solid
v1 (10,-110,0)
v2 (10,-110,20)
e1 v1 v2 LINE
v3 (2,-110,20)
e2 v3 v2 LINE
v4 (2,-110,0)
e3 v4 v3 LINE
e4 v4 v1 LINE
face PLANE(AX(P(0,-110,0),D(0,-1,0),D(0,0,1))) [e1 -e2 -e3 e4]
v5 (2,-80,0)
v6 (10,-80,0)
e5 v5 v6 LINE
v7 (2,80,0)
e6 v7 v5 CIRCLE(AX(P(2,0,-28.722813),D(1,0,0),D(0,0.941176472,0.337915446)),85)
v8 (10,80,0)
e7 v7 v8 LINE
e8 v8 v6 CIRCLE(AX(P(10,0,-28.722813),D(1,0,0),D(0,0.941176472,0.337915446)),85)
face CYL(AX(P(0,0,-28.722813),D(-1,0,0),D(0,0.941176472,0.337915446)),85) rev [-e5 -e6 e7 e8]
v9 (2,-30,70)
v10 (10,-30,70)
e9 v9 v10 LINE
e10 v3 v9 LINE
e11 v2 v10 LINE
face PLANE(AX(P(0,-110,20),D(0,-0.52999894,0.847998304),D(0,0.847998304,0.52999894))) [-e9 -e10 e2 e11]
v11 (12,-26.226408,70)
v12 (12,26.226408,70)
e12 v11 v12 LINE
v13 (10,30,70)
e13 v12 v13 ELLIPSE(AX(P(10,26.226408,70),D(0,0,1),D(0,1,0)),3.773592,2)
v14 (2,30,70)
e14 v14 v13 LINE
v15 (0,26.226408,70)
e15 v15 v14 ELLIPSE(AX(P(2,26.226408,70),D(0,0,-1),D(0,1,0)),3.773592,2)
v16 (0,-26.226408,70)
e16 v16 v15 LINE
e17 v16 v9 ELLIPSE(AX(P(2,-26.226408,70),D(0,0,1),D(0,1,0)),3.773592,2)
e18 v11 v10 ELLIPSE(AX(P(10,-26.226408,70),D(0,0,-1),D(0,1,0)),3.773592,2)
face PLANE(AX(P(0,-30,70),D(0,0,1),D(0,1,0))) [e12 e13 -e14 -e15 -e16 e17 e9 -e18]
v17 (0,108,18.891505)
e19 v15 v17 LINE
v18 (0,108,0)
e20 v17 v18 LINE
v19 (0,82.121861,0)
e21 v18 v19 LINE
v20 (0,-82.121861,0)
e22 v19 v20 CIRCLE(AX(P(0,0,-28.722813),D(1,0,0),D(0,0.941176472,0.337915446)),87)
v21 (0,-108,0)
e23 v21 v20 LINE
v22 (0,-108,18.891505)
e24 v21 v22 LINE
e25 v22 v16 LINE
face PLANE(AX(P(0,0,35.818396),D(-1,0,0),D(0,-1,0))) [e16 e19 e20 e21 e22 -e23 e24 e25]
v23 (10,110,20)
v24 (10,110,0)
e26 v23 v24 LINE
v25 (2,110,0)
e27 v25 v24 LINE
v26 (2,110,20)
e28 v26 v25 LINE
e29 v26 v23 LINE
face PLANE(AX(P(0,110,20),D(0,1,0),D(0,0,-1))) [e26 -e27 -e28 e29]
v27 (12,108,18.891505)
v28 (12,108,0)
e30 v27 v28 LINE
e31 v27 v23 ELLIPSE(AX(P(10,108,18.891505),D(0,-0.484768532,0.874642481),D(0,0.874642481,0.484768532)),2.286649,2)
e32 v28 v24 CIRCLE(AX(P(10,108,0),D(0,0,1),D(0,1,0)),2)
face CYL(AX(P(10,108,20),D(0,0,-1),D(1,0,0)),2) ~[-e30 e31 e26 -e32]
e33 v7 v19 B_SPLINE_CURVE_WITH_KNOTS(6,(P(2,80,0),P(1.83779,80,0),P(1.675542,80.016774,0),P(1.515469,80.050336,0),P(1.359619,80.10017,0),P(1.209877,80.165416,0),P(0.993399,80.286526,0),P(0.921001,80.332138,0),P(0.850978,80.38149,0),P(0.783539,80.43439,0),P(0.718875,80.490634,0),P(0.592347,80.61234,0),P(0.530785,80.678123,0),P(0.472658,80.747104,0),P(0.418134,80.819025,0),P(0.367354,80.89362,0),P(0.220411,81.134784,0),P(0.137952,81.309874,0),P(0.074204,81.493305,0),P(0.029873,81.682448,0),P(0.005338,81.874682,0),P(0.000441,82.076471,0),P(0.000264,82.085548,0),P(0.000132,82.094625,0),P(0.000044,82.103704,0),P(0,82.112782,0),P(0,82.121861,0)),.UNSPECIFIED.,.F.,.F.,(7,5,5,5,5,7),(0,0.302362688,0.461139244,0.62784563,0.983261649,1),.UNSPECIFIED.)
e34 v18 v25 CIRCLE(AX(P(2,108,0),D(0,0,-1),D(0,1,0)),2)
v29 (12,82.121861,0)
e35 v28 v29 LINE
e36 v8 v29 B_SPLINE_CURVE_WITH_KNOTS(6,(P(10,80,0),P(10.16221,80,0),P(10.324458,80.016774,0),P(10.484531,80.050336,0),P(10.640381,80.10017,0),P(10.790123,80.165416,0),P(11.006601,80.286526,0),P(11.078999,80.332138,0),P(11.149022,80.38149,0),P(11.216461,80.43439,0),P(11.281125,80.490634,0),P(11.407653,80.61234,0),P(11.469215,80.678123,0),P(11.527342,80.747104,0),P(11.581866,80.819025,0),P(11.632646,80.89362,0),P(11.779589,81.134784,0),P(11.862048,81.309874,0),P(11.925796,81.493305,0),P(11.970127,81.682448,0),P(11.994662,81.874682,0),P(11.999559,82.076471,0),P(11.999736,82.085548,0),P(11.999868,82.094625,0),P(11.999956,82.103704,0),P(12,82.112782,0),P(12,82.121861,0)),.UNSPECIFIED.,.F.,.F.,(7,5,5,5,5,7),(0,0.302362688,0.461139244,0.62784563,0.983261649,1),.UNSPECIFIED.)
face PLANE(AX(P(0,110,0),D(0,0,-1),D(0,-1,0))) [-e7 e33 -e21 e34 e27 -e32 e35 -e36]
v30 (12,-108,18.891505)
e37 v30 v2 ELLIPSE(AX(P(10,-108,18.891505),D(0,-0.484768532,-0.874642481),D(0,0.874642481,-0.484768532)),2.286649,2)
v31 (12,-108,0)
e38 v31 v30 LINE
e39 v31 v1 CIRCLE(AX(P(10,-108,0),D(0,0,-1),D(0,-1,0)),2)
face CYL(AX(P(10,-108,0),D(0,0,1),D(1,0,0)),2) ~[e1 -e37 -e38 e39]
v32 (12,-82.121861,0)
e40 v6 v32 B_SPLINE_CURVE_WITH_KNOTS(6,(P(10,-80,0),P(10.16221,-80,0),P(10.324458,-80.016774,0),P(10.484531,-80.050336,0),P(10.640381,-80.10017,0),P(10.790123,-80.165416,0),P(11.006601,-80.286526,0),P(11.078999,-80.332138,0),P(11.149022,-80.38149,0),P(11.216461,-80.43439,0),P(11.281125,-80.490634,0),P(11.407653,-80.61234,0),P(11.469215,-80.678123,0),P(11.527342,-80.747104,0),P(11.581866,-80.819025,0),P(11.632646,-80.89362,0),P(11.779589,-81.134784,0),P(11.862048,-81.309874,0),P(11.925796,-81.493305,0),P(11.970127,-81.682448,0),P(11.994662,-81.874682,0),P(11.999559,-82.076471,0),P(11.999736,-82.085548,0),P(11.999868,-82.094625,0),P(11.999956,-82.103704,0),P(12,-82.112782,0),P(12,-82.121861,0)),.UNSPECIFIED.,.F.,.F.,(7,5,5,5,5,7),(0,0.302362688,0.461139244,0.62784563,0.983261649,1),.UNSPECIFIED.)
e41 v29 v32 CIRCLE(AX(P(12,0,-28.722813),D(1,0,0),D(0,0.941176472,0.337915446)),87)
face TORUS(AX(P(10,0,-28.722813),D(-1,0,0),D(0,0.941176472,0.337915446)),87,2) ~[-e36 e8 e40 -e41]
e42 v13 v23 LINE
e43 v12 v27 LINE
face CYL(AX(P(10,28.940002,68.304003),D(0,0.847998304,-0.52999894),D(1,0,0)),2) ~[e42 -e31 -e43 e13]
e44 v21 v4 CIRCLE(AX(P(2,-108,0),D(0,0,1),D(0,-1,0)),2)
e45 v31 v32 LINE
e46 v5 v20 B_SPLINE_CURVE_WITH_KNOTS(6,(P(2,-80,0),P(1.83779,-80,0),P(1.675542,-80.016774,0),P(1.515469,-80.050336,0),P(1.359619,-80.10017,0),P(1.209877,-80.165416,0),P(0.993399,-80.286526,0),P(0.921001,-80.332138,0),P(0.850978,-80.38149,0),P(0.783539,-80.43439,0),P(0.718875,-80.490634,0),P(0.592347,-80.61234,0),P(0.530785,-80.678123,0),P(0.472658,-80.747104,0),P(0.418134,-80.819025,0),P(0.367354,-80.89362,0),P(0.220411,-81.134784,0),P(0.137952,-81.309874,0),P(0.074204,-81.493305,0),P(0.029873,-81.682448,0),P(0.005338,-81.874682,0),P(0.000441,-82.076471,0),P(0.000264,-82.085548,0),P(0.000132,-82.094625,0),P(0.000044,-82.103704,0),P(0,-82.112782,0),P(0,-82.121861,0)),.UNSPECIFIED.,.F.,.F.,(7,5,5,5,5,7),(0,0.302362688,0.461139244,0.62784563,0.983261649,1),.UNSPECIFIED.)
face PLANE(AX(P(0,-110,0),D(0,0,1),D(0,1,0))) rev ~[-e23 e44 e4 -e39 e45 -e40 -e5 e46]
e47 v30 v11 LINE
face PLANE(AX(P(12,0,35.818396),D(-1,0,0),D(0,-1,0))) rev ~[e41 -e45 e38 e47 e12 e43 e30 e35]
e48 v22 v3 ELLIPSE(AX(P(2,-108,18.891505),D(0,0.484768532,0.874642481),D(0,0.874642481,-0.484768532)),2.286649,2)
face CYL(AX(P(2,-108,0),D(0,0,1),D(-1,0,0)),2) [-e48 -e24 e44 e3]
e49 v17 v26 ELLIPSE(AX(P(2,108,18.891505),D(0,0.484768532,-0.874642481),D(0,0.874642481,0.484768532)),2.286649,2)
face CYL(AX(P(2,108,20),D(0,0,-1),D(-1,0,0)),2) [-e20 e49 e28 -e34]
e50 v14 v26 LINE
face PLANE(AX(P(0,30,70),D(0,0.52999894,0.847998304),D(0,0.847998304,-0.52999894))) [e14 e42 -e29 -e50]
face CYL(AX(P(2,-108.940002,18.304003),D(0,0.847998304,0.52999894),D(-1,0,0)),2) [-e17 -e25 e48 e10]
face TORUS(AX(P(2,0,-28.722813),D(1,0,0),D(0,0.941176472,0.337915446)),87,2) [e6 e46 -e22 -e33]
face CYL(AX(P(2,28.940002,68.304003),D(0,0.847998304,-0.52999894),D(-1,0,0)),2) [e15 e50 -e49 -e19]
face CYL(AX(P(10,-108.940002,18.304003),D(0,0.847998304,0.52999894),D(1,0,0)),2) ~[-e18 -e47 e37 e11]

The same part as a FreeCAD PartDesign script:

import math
import FreeCAD as App
import Part
import Sketcher


def edges_at(feature, points):
    """Names of the edges that pass closest to the given points."""
    edges = feature.Shape.Edges
    near = lambda p: min(range(len(edges)), key=lambda i: edges[i].distToShape(Part.Vertex(*p))[0])
    return sorted({f"Edge{near(p) + 1}" for p in points})

doc = App.newDocument("Part")
body = doc.addObject("PartDesign::Body", "Body")

sketch1 = body.newObject("Sketcher::SketchObject", "Sketch")
sketch1.AttachmentSupport = (doc.getObject("YZ_Plane"), [""])
sketch1.MapMode = "FlatFace"
sketch1.addGeometry([
    Part.LineSegment(App.Vector(-110, 20, 0), App.Vector(-110, 0, 0)),
    Part.LineSegment(App.Vector(-110, 0, 0), App.Vector(-80, 0, 0)),
    Part.ArcOfCircle(Part.Circle(App.Vector(0, -29, 0), App.Vector(0, 0, 1), 85), math.radians(20), math.radians(160)),
    Part.LineSegment(App.Vector(80, 0, 0), App.Vector(110, 0, 0)),
    Part.LineSegment(App.Vector(110, 0, 0), App.Vector(110, 20, 0)),
    Part.LineSegment(App.Vector(110, 20, 0), App.Vector(30, 70, 0)),
    Part.LineSegment(App.Vector(30, 70, 0), App.Vector(-30, 70, 0)),
    Part.LineSegment(App.Vector(-30, 70, 0), App.Vector(-110, 20, 0)),
], False)
sketch1.addConstraint([
    Sketcher.Constraint("Coincident", 0, 2, 1, 1),
    Sketcher.Constraint("Coincident", 1, 2, 2, 2),
    Sketcher.Constraint("Coincident", 2, 1, 3, 1),
    Sketcher.Constraint("Coincident", 3, 2, 4, 1),
    Sketcher.Constraint("Coincident", 4, 2, 5, 1),
    Sketcher.Constraint("Coincident", 5, 2, 6, 1),
    Sketcher.Constraint("Coincident", 6, 2, 7, 1),
    Sketcher.Constraint("Coincident", 7, 2, 0, 1),
    Sketcher.Constraint("Vertical", 0),
    Sketcher.Constraint("Horizontal", 1),
    Sketcher.Constraint("Horizontal", 3),
    Sketcher.Constraint("Vertical", 4),
    Sketcher.Constraint("Horizontal", 6),
    Sketcher.Constraint("Symmetric", 1, 2, 2, 1, -1, 1),
    Sketcher.Constraint("Symmetric", 0, 2, 3, 2, -2),
    Sketcher.Constraint("Horizontal", 4, 2, 7, 2),
    Sketcher.Constraint("Equal", 5, 7),
    Sketcher.Constraint("Radius", 2, 85.0),
    Sketcher.Constraint("DistanceX", 1, 1, 1, 2, 30.0),
    Sketcher.Constraint("DistanceX", 6, 2, 6, 1, 60.0),
    Sketcher.Constraint("DistanceY", 0, 2, 0, 1, 20.0),
    Sketcher.Constraint("DistanceX", 0, 2, -1, 1, 110.0),
    Sketcher.Constraint("DistanceY", -1, 1, 5, 2, 70.0),
])
pad1 = body.newObject("PartDesign::Pad", "Pad")
pad1.Profile = sketch1
pad1.Length = 12
doc.recompute()

fillet = body.newObject("PartDesign::Fillet", "Fillet")
fillet.Base = (pad1, edges_at(pad1, [(0, 0, 56.277), (12, 0, 56.277)]))
fillet.Radius = 2
doc.recompute()

fillet2 = body.newObject("PartDesign::Fillet", "Fillet001")
fillet2.Base = (fillet, edges_at(fillet, [
    (12, 70, 45),
    (0, 70, 45),
    (0, -70, 45),
    (12, -70, 45),
    (0, -110, 10),
    (12, -110, 10),
    (0, 110, 10),
    (12, 110, 10),
]))
fillet2.Radius = 2

doc.recompute()
